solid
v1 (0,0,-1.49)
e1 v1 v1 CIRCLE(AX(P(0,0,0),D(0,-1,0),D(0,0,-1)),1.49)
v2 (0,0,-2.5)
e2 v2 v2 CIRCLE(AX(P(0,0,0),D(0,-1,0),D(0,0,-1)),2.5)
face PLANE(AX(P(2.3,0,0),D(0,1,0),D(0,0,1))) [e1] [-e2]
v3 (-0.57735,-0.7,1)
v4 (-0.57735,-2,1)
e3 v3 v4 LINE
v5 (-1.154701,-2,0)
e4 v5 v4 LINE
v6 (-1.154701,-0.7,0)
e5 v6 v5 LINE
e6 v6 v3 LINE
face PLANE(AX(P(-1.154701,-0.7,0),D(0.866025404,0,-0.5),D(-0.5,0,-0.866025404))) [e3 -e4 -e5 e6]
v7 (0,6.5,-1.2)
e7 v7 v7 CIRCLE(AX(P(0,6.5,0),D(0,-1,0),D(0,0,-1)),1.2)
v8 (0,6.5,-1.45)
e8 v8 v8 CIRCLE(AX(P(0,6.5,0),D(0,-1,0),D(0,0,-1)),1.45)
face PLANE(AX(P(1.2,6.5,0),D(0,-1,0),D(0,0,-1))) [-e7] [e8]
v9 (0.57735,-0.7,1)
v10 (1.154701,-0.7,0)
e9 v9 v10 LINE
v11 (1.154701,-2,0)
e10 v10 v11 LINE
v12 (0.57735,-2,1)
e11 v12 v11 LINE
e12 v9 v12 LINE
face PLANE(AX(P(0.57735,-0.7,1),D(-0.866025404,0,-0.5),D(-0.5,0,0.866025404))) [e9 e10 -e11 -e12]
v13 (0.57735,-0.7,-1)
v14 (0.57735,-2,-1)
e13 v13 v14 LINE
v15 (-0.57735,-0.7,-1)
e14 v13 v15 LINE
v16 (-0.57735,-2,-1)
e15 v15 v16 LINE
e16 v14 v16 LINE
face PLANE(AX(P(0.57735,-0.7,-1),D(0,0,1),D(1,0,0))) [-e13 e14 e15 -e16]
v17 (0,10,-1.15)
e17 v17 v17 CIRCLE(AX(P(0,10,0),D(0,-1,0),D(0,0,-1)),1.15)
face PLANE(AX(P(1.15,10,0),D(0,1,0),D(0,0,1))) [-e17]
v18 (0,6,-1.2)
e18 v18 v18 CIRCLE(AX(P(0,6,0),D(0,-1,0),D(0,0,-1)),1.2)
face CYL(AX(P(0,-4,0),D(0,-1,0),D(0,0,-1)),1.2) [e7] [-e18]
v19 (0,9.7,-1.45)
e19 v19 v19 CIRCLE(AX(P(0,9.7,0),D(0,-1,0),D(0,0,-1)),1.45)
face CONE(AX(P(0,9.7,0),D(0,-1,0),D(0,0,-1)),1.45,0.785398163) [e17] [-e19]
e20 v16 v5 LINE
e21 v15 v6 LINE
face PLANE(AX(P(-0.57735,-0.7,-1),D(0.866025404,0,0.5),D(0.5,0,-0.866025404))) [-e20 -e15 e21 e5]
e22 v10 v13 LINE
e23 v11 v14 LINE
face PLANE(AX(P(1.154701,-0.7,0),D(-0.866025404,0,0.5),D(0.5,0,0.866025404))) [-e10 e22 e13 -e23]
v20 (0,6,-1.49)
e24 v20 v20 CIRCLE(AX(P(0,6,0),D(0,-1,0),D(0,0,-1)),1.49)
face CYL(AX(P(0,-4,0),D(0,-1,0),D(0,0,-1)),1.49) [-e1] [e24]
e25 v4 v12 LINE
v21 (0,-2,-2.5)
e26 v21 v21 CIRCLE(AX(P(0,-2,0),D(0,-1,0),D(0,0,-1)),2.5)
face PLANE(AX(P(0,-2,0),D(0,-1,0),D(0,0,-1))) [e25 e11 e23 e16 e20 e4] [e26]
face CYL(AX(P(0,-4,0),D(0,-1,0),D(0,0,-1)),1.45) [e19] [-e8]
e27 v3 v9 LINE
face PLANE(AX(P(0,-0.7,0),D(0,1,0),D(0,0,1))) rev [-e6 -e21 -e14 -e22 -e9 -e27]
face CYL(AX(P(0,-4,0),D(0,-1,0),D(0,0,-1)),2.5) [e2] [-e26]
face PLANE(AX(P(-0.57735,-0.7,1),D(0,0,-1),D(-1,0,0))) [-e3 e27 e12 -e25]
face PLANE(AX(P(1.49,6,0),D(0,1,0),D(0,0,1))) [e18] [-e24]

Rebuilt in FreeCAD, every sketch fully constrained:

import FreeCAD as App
import Part
import Sketcher
Q = App.Units.Quantity

doc = App.newDocument("Part")
body = doc.addObject("PartDesign::Body", "Body")

# Sketch on XY plane
sketch1 = doc.addObject("Sketcher::SketchObject", "Sketch")
body.addObject(sketch1)
sketch1.AttachmentSupport = (doc.XY_Plane, [""])
sketch1.MapMode = "FlatFace"
sketch1.addGeometry([
    Part.LineSegment(App.Vector(0, -2, 0), App.Vector(2.5, -2, 0)),  # 0
    Part.LineSegment(App.Vector(2.5, -2, 0), App.Vector(2.5, 0, 0)),  # 1
    Part.LineSegment(App.Vector(2.5, 0, 0), App.Vector(1.49, 0, 0)),  # 2
    Part.LineSegment(App.Vector(1.49, 0, 0), App.Vector(1.49, 6, 0)),  # 3
    Part.LineSegment(App.Vector(1.49, 6, 0), App.Vector(1.2, 6, 0)),  # 4
    Part.LineSegment(App.Vector(1.2, 6, 0), App.Vector(1.2, 6.5, 0)),  # 5
    Part.LineSegment(App.Vector(1.2, 6.5, 0), App.Vector(1.45, 6.5, 0)),  # 6
    Part.LineSegment(App.Vector(1.45, 6.5, 0), App.Vector(1.45, 9.7, 0)),  # 7
    Part.LineSegment(App.Vector(1.45, 9.7, 0), App.Vector(1.15, 10, 0)),  # 8
    Part.LineSegment(App.Vector(1.15, 10, 0), App.Vector(0, 10, 0)),  # 9
    Part.LineSegment(App.Vector(0, 10, 0), App.Vector(0, -2, 0)),  # 10
], False)
sketch1.addConstraint([
    Sketcher.Constraint("Coincident", 0, 2, 1, 1),
    Sketcher.Constraint("Coincident", 1, 2, 2, 1),
    Sketcher.Constraint("Coincident", 2, 2, 3, 1),
    Sketcher.Constraint("Coincident", 3, 2, 4, 1),
    Sketcher.Constraint("Coincident", 4, 2, 5, 1),
    Sketcher.Constraint("Coincident", 5, 2, 6, 1),
    Sketcher.Constraint("Coincident", 6, 2, 7, 1),
    Sketcher.Constraint("Coincident", 7, 2, 8, 1),
    Sketcher.Constraint("Coincident", 8, 2, 9, 1),
    Sketcher.Constraint("Coincident", 9, 2, 10, 1),
    Sketcher.Constraint("Coincident", 10, 2, 0, 1),
    Sketcher.Constraint("Horizontal", 0),
    Sketcher.Constraint("Vertical", 1),
    Sketcher.Constraint("Horizontal", 2),
    Sketcher.Constraint("Vertical", 3),
    Sketcher.Constraint("Horizontal", 4),
    Sketcher.Constraint("Vertical", 5),
    Sketcher.Constraint("Horizontal", 6),
    Sketcher.Constraint("Vertical", 7),
    Sketcher.Constraint("Horizontal", 9),
    Sketcher.Constraint("Vertical", 10),
    Sketcher.Constraint("PointOnObject", 1, 2, -1),
    Sketcher.Constraint("PointOnObject", 9, 2, -2),
    Sketcher.Constraint("DistanceY", 1, 1, 1, 2, 2.0),
    Sketcher.Constraint("DistanceY", 3, 1, 3, 2, 6.0),
    Sketcher.Constraint("DistanceY", 10, 2, 10, 1, 12.0),
    Sketcher.Constraint("Angle", 8, Q("135 deg")),
    Sketcher.Constraint("DistanceX", 0, 1, 0, 2, 2.5),
    Sketcher.Constraint("DistanceY", 5, 1, 5, 2, 0.5),
    Sketcher.Constraint("DistanceY", 7, 1, 7, 2, 3.2),
    Sketcher.Constraint("DistanceX", 2, 2, 2, 1, 1.01),
    Sketcher.Constraint("DistanceX", 4, 2, 4, 1, 0.29),
    Sketcher.Constraint("DistanceX", 6, 1, 6, 2, 0.25),
])
revolution = doc.addObject("PartDesign::Revolution", "Revolution")
body.addObject(revolution)
revolution.Profile = sketch1
revolution.ReferenceAxis = (sketch1, ["V_Axis"])
revolution.Angle = 360

# Sketch on XZ plane
sketch2 = doc.addObject("Sketcher::SketchObject", "Sketch001")
body.addObject(sketch2)
sketch2.AttachmentSupport = (doc.XZ_Plane, [""])
sketch2.MapMode = "FlatFace"
sketch2.AttachmentOffset = App.Placement(App.Vector(0, 0, 2), App.Rotation())
sketch2.addGeometry([
    Part.LineSegment(App.Vector(1.2, 0, 0), App.Vector(0.6, -1, 0)),  # 0
    Part.LineSegment(App.Vector(0.6, -1, 0), App.Vector(-0.6, -1, 0)),  # 1
    Part.LineSegment(App.Vector(-0.6, -1, 0), App.Vector(-1.2, 0, 0)),  # 2
    Part.LineSegment(App.Vector(-1.2, 0, 0), App.Vector(-0.6, 1, 0)),  # 3
    Part.LineSegment(App.Vector(-0.6, 1, 0), App.Vector(0.6, 1, 0)),  # 4
    Part.LineSegment(App.Vector(0.6, 1, 0), App.Vector(1.2, 0, 0)),  # 5
], False)
sketch2.addConstraint([
    Sketcher.Constraint("Coincident", 0, 2, 1, 1),
    Sketcher.Constraint("Coincident", 1, 2, 2, 1),
    Sketcher.Constraint("Coincident", 2, 2, 3, 1),
    Sketcher.Constraint("Coincident", 3, 2, 4, 1),
    Sketcher.Constraint("Coincident", 4, 2, 5, 1),
    Sketcher.Constraint("Coincident", 5, 2, 0, 1),
    Sketcher.Constraint("Horizontal", 1),
    Sketcher.Constraint("Horizontal", 4),
    Sketcher.Constraint("Symmetric", 0, 2, 3, 2, -1, 1),
    Sketcher.Constraint("Symmetric", 2, 2, 5, 2, -1, 1),
    Sketcher.Constraint("PointOnObject", 2, 2, -1),
    Sketcher.Constraint("Parallel", 2, 5),
    Sketcher.Constraint("Vertical", 1, 2, 3, 2),
    Sketcher.Constraint("Angle", 0, Q("-120 deg")),
    Sketcher.Constraint("DistanceY", 0, 2, -1, 1, 1.0),
    Sketcher.Constraint("DistanceX", 1, 2, 1, 1, 1.154701),
])
pocket1 = doc.addObject("PartDesign::Pocket", "Pocket")
body.addObject(pocket1)
pocket1.Profile = sketch2
pocket1.Length = 1.3

doc.recompute()
